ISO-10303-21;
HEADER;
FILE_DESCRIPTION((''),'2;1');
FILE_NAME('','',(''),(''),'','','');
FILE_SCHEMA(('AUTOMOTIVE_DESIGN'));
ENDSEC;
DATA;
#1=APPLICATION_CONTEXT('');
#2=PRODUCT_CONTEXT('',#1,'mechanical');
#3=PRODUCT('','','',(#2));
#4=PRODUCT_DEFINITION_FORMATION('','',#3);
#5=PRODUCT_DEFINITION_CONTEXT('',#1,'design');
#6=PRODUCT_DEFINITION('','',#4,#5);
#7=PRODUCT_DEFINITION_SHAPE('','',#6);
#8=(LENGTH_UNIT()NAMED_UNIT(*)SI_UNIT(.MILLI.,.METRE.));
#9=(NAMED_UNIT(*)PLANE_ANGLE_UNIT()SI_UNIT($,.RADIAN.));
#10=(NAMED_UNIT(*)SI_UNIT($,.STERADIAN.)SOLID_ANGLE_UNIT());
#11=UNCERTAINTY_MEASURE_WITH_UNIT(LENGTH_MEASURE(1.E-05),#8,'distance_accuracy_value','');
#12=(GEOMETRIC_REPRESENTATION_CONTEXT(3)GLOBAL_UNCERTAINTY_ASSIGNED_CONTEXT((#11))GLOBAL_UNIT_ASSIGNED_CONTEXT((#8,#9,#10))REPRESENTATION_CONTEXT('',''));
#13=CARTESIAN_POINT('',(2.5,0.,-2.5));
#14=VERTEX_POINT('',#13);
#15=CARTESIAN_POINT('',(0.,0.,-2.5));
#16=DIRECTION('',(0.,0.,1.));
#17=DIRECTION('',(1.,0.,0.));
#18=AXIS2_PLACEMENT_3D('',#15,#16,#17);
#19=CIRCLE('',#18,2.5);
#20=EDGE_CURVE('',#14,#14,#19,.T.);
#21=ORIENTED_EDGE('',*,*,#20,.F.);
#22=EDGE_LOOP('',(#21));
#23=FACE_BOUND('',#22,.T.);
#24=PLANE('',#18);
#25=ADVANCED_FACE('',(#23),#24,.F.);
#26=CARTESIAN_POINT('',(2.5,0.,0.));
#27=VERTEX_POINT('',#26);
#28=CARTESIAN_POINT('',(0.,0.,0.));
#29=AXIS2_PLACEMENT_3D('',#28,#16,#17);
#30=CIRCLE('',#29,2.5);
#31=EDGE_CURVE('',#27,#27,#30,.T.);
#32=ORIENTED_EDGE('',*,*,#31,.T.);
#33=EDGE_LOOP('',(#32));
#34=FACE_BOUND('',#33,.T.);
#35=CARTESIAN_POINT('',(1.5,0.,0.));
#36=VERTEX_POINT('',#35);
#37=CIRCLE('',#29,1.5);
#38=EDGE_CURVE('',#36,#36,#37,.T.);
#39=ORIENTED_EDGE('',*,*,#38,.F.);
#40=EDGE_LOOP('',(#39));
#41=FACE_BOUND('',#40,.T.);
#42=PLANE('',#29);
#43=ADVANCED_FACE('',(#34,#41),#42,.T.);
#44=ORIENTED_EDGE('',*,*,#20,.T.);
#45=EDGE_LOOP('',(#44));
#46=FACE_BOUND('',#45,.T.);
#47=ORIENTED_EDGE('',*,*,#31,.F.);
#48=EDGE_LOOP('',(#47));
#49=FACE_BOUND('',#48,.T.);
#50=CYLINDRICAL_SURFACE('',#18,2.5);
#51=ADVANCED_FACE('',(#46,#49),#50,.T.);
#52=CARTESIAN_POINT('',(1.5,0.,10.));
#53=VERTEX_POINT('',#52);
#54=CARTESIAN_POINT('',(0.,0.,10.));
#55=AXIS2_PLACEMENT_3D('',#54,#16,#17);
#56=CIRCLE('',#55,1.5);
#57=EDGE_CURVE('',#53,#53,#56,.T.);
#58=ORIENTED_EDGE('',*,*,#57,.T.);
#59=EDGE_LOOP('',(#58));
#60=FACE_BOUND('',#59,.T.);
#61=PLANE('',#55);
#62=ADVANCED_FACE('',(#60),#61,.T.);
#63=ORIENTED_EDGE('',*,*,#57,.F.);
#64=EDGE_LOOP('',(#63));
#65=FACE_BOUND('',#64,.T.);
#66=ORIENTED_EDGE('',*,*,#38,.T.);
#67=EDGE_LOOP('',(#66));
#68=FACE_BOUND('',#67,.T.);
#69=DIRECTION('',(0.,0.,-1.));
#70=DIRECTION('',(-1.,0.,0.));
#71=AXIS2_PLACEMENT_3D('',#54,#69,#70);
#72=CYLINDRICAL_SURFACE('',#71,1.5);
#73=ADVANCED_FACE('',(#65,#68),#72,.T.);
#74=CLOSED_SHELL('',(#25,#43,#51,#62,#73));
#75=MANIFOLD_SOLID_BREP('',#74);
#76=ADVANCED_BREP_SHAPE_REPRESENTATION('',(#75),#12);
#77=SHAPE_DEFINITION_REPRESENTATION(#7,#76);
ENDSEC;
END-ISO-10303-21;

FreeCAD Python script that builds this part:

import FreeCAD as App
import Part
import Sketcher
from FreeCAD import Vector
Q = App.Units.Quantity

doc = App.newDocument("Part")
params = doc.addObject("Spreadsheet::Sheet", "Params")
for row, (alias, value) in enumerate([
    ("sketch1_diameter", "5 mm"),
    ("pad1_length", "2.5 mm"),
    ("sketch2_diameter", "3 mm"),
    ("pad2_length", "10 mm"),
], start=1):
    params.set(f"A{row}", alias)
    params.set(f"B{row}", "=" + value)
    params.setAlias(f"B{row}", alias)

body = doc.addObject("PartDesign::Body", "Body")

# Sketch on XY plane
sketch1 = doc.addObject("Sketcher::SketchObject", "Sketch")
body.addObject(sketch1)
sketch1.AttachmentSupport = (doc.XY_Plane, [""])
sketch1.MapMode = "FlatFace"
sketch1.addGeometry(Part.Circle(Vector(0, 0, 0), Vector(0, 0, 1), 2.5), False)
sketch1.addConstraint(Sketcher.Constraint("Coincident", 0, 3, -1, 1))
sketch1.addConstraint(Sketcher.Constraint("Diameter", 0, Q("5 mm")))
sketch1.setExpression("Constraints[1]", "Params.sketch1_diameter")
pad1 = doc.addObject("PartDesign::Pad", "Pad")
body.addObject(pad1)
pad1.Profile = sketch1
pad1.setExpression("Length", "Params.pad1_length")
pad1.Reversed = True

# Sketch on XY plane
sketch2 = doc.addObject("Sketcher::SketchObject", "Sketch001")
body.addObject(sketch2)
sketch2.AttachmentSupport = (doc.XY_Plane, [""])
sketch2.MapMode = "FlatFace"
sketch2.addGeometry(Part.Circle(Vector(0, 0, 0), Vector(0, 0, 1), 1.5), False)
sketch2.addConstraint(Sketcher.Constraint("Coincident", 0, 3, -1, 1))
sketch2.addConstraint(Sketcher.Constraint("Diameter", 0, Q("3 mm")))
sketch2.setExpression("Constraints[1]", "Params.sketch2_diameter")
pad2 = doc.addObject("PartDesign::Pad", "Pad001")
body.addObject(pad2)
pad2.Profile = sketch2
pad2.setExpression("Length", "Params.pad2_length")

doc.recompute()
